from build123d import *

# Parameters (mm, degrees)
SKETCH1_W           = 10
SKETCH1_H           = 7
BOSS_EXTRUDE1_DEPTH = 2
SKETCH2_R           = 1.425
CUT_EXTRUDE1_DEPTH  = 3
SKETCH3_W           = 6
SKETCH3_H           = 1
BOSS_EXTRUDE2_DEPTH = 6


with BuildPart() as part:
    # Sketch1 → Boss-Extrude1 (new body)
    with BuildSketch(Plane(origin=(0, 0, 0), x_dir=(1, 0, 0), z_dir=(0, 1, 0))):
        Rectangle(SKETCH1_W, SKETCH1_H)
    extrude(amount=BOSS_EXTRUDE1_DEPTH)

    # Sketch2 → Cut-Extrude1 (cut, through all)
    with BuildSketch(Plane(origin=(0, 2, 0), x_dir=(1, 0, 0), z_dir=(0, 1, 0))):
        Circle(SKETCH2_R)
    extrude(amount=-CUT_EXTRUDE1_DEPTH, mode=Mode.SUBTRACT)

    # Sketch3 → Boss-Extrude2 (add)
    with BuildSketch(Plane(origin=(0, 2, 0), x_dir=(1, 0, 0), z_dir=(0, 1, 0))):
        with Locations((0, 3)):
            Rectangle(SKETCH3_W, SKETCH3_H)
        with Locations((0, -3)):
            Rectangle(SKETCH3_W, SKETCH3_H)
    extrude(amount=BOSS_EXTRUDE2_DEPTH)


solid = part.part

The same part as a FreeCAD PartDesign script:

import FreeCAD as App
import Part
import Sketcher
from FreeCAD import Vector
Q = App.Units.Quantity

doc = App.newDocument("Part")
body = doc.addObject("PartDesign::Body", "Body")

sketch1 = body.newObject("Sketcher::SketchObject", "Sketch")
sketch1.AttachmentSupport = (doc.getObject("XZ_Plane"), [""])
sketch1.MapMode = "FlatFace"
sketch1.addGeometry(Part.LineSegment(Vector(-5, -4, 0), Vector(-5, 4, 0)), False)
sketch1.addGeometry(Part.LineSegment(Vector(-5, 4, 0), Vector(5, 4, 0)), False)
sketch1.addGeometry(Part.LineSegment(Vector(5, 4, 0), Vector(5, -4, 0)), False)
sketch1.addGeometry(Part.LineSegment(Vector(5, -4, 0), Vector(-5, -4, 0)), False)
sketch1.addConstraint(Sketcher.Constraint("Coincident", 0, 2, 1, 1))
sketch1.addConstraint(Sketcher.Constraint("Coincident", 1, 2, 2, 1))
sketch1.addConstraint(Sketcher.Constraint("Coincident", 2, 2, 3, 1))
sketch1.addConstraint(Sketcher.Constraint("Coincident", 3, 2, 0, 1))
sketch1.addConstraint(Sketcher.Constraint("Vertical", 0))
sketch1.addConstraint(Sketcher.Constraint("Horizontal", 1))
sketch1.addConstraint(Sketcher.Constraint("Vertical", 2))
sketch1.addConstraint(Sketcher.Constraint("Horizontal", 3))
sketch1.addConstraint(Sketcher.Constraint("Symmetric", 0, 2, 2, 2, -1, 1))
sketch1.addConstraint(Sketcher.Constraint("DistanceX", 1, 1, 1, 2, Q("10 mm")))
sketch1.addConstraint(Sketcher.Constraint("DistanceY", 0, 1, 0, 2, Q("7 mm")))
pad1 = body.newObject("PartDesign::Pad", "Pad")
pad1.Profile = sketch1
pad1.Length = 2
pad1.Reversed = True

sketch2 = body.newObject("Sketcher::SketchObject", "Sketch001")
sketch2.AttachmentSupport = (doc.getObject("XZ_Plane"), [""])
sketch2.MapMode = "FlatFace"
sketch2.AttachmentOffset = App.Placement(Vector(0, 0, -2), App.Rotation())
sketch2.addGeometry(Part.Circle(Vector(0, 0, 0), Vector(0, 0, 1), 1.4), False)
sketch2.addConstraint(Sketcher.Constraint("Coincident", 0, 3, -1, 1))
sketch2.addConstraint(Sketcher.Constraint("Diameter", 0, Q("2.85 mm")))
pocket1 = body.newObject("PartDesign::Pocket", "Pocket")
pocket1.Profile = sketch2
pocket1.Type = "ThroughAll"
pocket1.Reversed = True

sketch3 = body.newObject("Sketcher::SketchObject", "Sketch002")
sketch3.AttachmentSupport = (doc.getObject("XZ_Plane"), [""])
sketch3.MapMode = "FlatFace"
sketch3.AttachmentOffset = App.Placement(Vector(0, 0, -2), App.Rotation())
sketch3.addGeometry(Part.LineSegment(Vector(-3, -3.5, 0), Vector(-3, -2.5, 0)), False)
sketch3.addGeometry(Part.LineSegment(Vector(-3, -2.5, 0), Vector(3, -2.5, 0)), False)
sketch3.addGeometry(Part.LineSegment(Vector(3, -2.5, 0), Vector(3, -3.5, 0)), False)
sketch3.addGeometry(Part.LineSegment(Vector(3, -3.5, 0), Vector(-3, -3.5, 0)), False)
sketch3.addGeometry(Part.LineSegment(Vector(-3, 2.5, 0), Vector(-3, 3.5, 0)), False)
sketch3.addGeometry(Part.LineSegment(Vector(-3, 3.5, 0), Vector(3, 3.5, 0)), False)
sketch3.addGeometry(Part.LineSegment(Vector(3, 3.5, 0), Vector(3, 2.5, 0)), False)
sketch3.addGeometry(Part.LineSegment(Vector(3, 2.5, 0), Vector(-3, 2.5, 0)), False)
sketch3.addConstraint(Sketcher.Constraint("Coincident", 0, 2, 1, 1))
sketch3.addConstraint(Sketcher.Constraint("Coincident", 1, 2, 2, 1))
sketch3.addConstraint(Sketcher.Constraint("Coincident", 2, 2, 3, 1))
sketch3.addConstraint(Sketcher.Constraint("Coincident", 3, 2, 0, 1))
sketch3.addConstraint(Sketcher.Constraint("Coincident", 4, 2, 5, 1))
sketch3.addConstraint(Sketcher.Constraint("Coincident", 5, 2, 6, 1))
sketch3.addConstraint(Sketcher.Constraint("Coincident", 6, 2, 7, 1))
sketch3.addConstraint(Sketcher.Constraint("Coincident", 7, 2, 4, 1))
sketch3.addConstraint(Sketcher.Constraint("Vertical", 0))
sketch3.addConstraint(Sketcher.Constraint("Horizontal", 1))
sketch3.addConstraint(Sketcher.Constraint("Vertical", 2))
sketch3.addConstraint(Sketcher.Constraint("Horizontal", 3))
sketch3.addConstraint(Sketcher.Constraint("Vertical", 4))
sketch3.addConstraint(Sketcher.Constraint("Horizontal", 5))
sketch3.addConstraint(Sketcher.Constraint("Vertical", 6))
sketch3.addConstraint(Sketcher.Constraint("Horizontal", 7))
sketch3.addConstraint(Sketcher.Constraint("Symmetric", 2, 2, 4, 2, -1, 1))
sketch3.addConstraint(Sketcher.Constraint("Symmetric", 0, 2, 6, 2, -1, 1))
sketch3.addConstraint(Sketcher.Constraint("Vertical", 3, 2, 4, 2))
sketch3.addConstraint(Sketcher.Constraint("DistanceX", 1, 1, 1, 2, Q("6 mm")))
sketch3.addConstraint(Sketcher.Constraint("DistanceY", 0, 1, 0, 2, Q("1 mm")))
sketch3.addConstraint(Sketcher.Constraint("DistanceY", 0, 2, 4, 2, Q("6 mm")))
pad2 = body.newObject("PartDesign::Pad", "Pad001")
pad2.Profile = sketch3
pad2.Length = 6
pad2.Reversed = True

doc.recompute()
